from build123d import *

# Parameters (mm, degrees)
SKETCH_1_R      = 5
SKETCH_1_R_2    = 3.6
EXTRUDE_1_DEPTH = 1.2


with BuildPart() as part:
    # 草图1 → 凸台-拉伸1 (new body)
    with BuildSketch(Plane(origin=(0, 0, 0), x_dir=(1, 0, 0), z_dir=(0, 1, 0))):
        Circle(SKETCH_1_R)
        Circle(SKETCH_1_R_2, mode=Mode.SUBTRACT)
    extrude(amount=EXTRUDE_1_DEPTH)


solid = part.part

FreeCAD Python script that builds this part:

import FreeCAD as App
import Part
import Sketcher
from FreeCAD import Vector

doc = App.newDocument("Part")
body = doc.addObject("PartDesign::Body", "Body")

# Sketch on XZ plane
sketch1 = body.newObject("Sketcher::SketchObject", "Sketch")
sketch1.AttachmentSupport = (doc.getObject("XZ_Plane"), [""])
sketch1.MapMode = "FlatFace"
sketch1.addGeometry([
    Part.Circle(Vector(0, 0, 0), Vector(0, 0, 1), 5),
    Part.Circle(Vector(0, 0, 0), Vector(0, 0, 1), 3.6),
], False)
sketch1.addConstraint([
    Sketcher.Constraint("Coincident", 0, 3, -1, 1),
    Sketcher.Constraint("Coincident", 1, 3, -1, 1),
    Sketcher.Constraint("Diameter", 0, 10.0),
    Sketcher.Constraint("Diameter", 1, 7.2),
])
pad1 = body.newObject("PartDesign::Pad", "Pad")
pad1.Profile = sketch1
pad1.Length = 1.2
pad1.Reversed = True

doc.recompute()
